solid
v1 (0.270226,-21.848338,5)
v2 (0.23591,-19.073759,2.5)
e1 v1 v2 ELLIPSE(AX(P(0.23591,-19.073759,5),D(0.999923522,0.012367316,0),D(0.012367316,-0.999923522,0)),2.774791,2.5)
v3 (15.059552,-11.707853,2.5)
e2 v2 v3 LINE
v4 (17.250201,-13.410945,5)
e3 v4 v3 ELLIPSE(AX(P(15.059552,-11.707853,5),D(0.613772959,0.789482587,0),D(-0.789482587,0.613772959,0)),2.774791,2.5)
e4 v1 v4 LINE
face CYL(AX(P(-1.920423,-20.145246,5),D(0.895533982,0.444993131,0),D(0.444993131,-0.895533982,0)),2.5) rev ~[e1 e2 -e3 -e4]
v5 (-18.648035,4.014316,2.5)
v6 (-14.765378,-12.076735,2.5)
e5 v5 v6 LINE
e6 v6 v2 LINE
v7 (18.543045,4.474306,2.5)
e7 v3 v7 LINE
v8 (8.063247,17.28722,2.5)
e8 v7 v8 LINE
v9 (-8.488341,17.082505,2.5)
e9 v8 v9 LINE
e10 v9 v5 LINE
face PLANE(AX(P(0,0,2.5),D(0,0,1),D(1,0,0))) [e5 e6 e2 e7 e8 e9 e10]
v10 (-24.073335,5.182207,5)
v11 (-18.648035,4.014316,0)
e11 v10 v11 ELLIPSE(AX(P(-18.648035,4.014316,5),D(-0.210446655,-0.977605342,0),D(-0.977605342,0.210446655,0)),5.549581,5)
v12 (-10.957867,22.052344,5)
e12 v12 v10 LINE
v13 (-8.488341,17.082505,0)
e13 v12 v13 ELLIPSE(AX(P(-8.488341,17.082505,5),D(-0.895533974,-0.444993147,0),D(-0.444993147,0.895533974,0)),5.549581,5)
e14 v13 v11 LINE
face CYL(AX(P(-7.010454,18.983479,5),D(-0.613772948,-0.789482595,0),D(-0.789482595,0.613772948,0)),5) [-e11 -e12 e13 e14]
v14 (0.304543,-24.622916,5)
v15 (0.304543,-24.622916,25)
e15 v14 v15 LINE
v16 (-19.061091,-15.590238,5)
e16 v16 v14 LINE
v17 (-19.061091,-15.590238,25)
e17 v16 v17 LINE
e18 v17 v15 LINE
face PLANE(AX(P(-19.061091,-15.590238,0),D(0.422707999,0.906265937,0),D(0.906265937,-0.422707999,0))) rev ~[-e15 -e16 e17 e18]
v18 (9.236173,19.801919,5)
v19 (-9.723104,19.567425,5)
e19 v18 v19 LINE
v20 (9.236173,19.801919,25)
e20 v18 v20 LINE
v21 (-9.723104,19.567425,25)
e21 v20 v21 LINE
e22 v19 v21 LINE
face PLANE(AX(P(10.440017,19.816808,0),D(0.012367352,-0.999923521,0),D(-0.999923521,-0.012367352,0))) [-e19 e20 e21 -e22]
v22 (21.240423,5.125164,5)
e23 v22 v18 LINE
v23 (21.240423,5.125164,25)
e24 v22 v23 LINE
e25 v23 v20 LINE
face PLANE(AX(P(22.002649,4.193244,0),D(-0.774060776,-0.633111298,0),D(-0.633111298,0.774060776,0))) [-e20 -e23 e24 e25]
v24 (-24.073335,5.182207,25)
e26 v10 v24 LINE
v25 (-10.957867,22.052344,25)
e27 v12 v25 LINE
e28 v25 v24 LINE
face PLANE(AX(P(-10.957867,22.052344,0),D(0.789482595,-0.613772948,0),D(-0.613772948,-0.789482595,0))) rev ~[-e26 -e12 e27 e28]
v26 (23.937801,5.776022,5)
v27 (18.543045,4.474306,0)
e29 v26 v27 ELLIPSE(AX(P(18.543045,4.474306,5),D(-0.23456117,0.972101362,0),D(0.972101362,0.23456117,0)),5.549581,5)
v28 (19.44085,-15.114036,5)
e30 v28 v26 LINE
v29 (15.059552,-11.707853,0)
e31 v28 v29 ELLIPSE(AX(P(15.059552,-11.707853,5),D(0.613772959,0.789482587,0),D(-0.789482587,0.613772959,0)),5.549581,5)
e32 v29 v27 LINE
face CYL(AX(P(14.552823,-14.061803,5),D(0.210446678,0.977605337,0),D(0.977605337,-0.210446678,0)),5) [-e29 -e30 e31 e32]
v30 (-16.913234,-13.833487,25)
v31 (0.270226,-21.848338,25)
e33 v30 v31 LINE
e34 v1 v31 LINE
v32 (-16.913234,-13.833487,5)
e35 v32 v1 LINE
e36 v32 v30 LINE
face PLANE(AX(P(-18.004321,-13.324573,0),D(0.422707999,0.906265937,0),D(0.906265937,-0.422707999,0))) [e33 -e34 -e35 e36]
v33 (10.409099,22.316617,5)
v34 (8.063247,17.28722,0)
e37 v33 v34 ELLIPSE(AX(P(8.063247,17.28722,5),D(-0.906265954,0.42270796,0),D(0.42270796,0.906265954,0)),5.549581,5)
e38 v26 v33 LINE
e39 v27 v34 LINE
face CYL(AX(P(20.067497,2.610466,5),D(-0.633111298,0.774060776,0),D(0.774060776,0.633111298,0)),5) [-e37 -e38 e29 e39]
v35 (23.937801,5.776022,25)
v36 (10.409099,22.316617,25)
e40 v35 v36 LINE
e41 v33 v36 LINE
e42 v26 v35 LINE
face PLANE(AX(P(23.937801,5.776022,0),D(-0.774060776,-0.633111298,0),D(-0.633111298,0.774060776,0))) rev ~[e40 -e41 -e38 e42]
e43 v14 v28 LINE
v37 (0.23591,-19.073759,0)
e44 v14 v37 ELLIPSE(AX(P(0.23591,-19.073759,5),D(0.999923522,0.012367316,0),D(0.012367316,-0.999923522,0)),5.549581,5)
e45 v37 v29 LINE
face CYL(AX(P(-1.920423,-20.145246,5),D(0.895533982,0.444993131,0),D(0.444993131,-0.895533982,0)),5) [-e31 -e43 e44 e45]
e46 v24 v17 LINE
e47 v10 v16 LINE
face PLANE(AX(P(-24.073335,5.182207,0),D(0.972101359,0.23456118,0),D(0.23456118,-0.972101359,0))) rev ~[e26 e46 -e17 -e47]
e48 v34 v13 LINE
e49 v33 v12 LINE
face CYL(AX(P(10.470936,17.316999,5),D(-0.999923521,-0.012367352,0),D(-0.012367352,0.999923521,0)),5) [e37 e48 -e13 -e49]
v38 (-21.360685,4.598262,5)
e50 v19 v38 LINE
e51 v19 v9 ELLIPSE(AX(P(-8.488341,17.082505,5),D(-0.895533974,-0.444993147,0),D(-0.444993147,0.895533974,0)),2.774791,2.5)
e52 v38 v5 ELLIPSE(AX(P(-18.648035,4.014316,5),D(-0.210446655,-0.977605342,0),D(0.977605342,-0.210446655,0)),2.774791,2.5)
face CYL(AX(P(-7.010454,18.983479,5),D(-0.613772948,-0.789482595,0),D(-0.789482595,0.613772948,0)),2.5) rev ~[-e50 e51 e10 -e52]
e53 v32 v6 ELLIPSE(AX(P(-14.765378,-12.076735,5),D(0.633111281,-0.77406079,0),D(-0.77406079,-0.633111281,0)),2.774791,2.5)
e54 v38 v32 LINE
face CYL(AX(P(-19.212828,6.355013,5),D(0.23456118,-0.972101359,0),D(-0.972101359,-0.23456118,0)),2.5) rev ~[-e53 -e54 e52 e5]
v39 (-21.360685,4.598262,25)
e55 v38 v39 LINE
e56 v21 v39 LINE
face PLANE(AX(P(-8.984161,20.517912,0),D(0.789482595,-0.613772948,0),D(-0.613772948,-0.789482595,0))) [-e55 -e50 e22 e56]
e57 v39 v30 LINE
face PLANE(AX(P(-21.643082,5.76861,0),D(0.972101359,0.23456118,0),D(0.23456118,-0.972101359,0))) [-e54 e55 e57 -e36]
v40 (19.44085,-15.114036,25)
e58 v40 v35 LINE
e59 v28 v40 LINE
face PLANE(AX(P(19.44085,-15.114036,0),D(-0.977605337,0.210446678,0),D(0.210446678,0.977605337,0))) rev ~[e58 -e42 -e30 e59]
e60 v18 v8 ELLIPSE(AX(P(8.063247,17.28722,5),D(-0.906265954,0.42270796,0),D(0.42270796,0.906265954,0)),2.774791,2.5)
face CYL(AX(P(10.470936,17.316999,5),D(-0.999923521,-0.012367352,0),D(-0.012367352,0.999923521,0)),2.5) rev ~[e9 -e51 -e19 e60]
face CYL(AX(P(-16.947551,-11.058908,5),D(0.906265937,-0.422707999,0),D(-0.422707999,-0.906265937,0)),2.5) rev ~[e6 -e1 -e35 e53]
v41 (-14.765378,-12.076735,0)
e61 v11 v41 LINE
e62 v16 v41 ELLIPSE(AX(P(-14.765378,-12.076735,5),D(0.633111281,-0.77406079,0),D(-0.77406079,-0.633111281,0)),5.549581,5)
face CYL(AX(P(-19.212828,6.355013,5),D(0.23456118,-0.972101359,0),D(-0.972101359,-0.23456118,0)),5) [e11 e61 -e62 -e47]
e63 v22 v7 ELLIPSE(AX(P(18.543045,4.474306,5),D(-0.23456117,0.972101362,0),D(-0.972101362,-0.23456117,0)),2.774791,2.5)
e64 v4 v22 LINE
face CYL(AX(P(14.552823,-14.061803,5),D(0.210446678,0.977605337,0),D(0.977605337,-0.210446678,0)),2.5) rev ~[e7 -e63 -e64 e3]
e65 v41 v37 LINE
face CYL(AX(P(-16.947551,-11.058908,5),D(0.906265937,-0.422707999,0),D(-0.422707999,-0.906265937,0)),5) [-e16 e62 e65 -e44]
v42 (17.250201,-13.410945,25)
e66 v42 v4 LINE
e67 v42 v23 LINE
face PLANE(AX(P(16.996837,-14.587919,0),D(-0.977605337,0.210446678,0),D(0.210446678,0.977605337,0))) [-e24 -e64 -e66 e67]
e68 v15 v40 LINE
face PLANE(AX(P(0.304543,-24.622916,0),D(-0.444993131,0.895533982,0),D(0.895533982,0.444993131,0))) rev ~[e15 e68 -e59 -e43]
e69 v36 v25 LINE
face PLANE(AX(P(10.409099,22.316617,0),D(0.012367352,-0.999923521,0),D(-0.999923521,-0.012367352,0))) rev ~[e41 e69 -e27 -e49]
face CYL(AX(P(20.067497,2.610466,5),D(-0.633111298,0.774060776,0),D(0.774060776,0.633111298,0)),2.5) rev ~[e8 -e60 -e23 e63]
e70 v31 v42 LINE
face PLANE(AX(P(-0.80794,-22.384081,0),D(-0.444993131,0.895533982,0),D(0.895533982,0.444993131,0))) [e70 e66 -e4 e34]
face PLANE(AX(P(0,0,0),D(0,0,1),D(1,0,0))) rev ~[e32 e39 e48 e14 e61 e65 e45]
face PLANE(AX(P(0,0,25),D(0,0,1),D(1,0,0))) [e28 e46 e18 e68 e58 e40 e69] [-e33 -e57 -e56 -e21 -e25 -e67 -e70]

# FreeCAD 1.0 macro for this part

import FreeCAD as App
import Part
import Sketcher
from FreeCAD import Vector


def edges_at(feature, points):
    """Names of the edges that pass closest to the given points."""
    edges = feature.Shape.Edges
    near = lambda p: min(range(len(edges)), key=lambda i: edges[i].distToShape(Part.Vertex(*p))[0])
    return sorted({f"Edge{near(p) + 1}" for p in points})


def faces_at(feature, points):
    """Names of the faces that lie closest to the given points."""
    faces = feature.Shape.Faces
    near = lambda p: min(range(len(faces)), key=lambda i: faces[i].distToShape(Part.Vertex(*p))[0])
    return sorted({f"Face{near(p) + 1}" for p in points})

doc = App.newDocument("Part")
body = doc.addObject("PartDesign::Body", "Body")

# Sketch on XY plane
sketch1 = doc.addObject("Sketcher::SketchObject", "Sketch")
body.addObject(sketch1)
sketch1.AttachmentSupport = (doc.XY_Plane, [""])
sketch1.MapMode = "FlatFace"
sketch1.addGeometry([
    Part.LineSegment(Vector(19, -15, 0), Vector(24, 6, 0)),  # 0
    Part.LineSegment(Vector(24, 6, 0), Vector(10, 22, 0)),  # 1
    Part.LineSegment(Vector(10, 22, 0), Vector(-11, 22, 0)),  # 2
    Part.LineSegment(Vector(-11, 22, 0), Vector(-24, 5, 0)),  # 3
    Part.LineSegment(Vector(-24, 5, 0), Vector(-19, -16, 0)),  # 4
    Part.LineSegment(Vector(-19, -16, 0), Vector(0, -25, 0)),  # 5
    Part.LineSegment(Vector(0, -25, 0), Vector(19, -15, 0)),  # 6
], False)
sketch1.addConstraint([
    Sketcher.Constraint("Coincident", 0, 2, 1, 1),
    Sketcher.Constraint("Coincident", 1, 2, 2, 1),
    Sketcher.Constraint("Coincident", 2, 2, 3, 1),
    Sketcher.Constraint("Coincident", 3, 2, 4, 1),
    Sketcher.Constraint("Coincident", 4, 2, 5, 1),
    Sketcher.Constraint("Coincident", 5, 2, 6, 1),
    Sketcher.Constraint("Coincident", 6, 2, 0, 1),
    Sketcher.Constraint("Equal", 0, 1),
    Sketcher.Constraint("Equal", 1, 2),
    Sketcher.Constraint("Equal", 2, 3),
    Sketcher.Constraint("Equal", 3, 4),
    Sketcher.Constraint("Equal", 4, 5),
    Sketcher.Constraint("Equal", 5, 6),
    Sketcher.Constraint("Distance", 0, 21.368601),
    Sketcher.Constraint("DistanceX", -1, 1, 0, 2, 23.937801),
    Sketcher.Constraint("DistanceX", -1, 1, 1, 2, 10.409099),
    Sketcher.Constraint("DistanceY", 4, 2, 6, 2, 0.476202),
    Sketcher.Constraint("DistanceX", 4, 2, -1, 1, 19.061091),
    Sketcher.Constraint("DistanceX", -1, 1, 6, 2, 19.44085),
    Sketcher.Constraint("DistanceY", 3, 2, 1, 2, 17.13441),
    Sketcher.Constraint("DistanceY", -1, 1, 0, 2, 5.776022),
])
pad1 = doc.addObject("PartDesign::Pad", "Pad")
body.addObject(pad1)
pad1.Profile = sketch1
pad1.Length = 25
doc.recompute()

fillet = doc.addObject("PartDesign::Fillet", "Fillet")
body.addObject(fillet)
fillet.Base = (pad1, edges_at(pad1, [
    (21.689, -4.669, 0),
    (17.173, 14.046, 0),
    (-0.274, 22.184, 0),
    (-17.516, 13.617, 0),
    (-21.567, -5.204, 0),
    (-9.378, -20.107, 0),
    (9.873, -19.868, 0),
]))
fillet.Radius = 5
doc.recompute()

thickness = doc.addObject("PartDesign::Thickness", "Thickness")
body.addObject(thickness)
thickness.Base = (fillet, faces_at(fillet, [(-0.068, -1.153, 25)]))
thickness.Value = 2.5
thickness.Reversed = True
thickness.Join = "Arc"

doc.recompute()
